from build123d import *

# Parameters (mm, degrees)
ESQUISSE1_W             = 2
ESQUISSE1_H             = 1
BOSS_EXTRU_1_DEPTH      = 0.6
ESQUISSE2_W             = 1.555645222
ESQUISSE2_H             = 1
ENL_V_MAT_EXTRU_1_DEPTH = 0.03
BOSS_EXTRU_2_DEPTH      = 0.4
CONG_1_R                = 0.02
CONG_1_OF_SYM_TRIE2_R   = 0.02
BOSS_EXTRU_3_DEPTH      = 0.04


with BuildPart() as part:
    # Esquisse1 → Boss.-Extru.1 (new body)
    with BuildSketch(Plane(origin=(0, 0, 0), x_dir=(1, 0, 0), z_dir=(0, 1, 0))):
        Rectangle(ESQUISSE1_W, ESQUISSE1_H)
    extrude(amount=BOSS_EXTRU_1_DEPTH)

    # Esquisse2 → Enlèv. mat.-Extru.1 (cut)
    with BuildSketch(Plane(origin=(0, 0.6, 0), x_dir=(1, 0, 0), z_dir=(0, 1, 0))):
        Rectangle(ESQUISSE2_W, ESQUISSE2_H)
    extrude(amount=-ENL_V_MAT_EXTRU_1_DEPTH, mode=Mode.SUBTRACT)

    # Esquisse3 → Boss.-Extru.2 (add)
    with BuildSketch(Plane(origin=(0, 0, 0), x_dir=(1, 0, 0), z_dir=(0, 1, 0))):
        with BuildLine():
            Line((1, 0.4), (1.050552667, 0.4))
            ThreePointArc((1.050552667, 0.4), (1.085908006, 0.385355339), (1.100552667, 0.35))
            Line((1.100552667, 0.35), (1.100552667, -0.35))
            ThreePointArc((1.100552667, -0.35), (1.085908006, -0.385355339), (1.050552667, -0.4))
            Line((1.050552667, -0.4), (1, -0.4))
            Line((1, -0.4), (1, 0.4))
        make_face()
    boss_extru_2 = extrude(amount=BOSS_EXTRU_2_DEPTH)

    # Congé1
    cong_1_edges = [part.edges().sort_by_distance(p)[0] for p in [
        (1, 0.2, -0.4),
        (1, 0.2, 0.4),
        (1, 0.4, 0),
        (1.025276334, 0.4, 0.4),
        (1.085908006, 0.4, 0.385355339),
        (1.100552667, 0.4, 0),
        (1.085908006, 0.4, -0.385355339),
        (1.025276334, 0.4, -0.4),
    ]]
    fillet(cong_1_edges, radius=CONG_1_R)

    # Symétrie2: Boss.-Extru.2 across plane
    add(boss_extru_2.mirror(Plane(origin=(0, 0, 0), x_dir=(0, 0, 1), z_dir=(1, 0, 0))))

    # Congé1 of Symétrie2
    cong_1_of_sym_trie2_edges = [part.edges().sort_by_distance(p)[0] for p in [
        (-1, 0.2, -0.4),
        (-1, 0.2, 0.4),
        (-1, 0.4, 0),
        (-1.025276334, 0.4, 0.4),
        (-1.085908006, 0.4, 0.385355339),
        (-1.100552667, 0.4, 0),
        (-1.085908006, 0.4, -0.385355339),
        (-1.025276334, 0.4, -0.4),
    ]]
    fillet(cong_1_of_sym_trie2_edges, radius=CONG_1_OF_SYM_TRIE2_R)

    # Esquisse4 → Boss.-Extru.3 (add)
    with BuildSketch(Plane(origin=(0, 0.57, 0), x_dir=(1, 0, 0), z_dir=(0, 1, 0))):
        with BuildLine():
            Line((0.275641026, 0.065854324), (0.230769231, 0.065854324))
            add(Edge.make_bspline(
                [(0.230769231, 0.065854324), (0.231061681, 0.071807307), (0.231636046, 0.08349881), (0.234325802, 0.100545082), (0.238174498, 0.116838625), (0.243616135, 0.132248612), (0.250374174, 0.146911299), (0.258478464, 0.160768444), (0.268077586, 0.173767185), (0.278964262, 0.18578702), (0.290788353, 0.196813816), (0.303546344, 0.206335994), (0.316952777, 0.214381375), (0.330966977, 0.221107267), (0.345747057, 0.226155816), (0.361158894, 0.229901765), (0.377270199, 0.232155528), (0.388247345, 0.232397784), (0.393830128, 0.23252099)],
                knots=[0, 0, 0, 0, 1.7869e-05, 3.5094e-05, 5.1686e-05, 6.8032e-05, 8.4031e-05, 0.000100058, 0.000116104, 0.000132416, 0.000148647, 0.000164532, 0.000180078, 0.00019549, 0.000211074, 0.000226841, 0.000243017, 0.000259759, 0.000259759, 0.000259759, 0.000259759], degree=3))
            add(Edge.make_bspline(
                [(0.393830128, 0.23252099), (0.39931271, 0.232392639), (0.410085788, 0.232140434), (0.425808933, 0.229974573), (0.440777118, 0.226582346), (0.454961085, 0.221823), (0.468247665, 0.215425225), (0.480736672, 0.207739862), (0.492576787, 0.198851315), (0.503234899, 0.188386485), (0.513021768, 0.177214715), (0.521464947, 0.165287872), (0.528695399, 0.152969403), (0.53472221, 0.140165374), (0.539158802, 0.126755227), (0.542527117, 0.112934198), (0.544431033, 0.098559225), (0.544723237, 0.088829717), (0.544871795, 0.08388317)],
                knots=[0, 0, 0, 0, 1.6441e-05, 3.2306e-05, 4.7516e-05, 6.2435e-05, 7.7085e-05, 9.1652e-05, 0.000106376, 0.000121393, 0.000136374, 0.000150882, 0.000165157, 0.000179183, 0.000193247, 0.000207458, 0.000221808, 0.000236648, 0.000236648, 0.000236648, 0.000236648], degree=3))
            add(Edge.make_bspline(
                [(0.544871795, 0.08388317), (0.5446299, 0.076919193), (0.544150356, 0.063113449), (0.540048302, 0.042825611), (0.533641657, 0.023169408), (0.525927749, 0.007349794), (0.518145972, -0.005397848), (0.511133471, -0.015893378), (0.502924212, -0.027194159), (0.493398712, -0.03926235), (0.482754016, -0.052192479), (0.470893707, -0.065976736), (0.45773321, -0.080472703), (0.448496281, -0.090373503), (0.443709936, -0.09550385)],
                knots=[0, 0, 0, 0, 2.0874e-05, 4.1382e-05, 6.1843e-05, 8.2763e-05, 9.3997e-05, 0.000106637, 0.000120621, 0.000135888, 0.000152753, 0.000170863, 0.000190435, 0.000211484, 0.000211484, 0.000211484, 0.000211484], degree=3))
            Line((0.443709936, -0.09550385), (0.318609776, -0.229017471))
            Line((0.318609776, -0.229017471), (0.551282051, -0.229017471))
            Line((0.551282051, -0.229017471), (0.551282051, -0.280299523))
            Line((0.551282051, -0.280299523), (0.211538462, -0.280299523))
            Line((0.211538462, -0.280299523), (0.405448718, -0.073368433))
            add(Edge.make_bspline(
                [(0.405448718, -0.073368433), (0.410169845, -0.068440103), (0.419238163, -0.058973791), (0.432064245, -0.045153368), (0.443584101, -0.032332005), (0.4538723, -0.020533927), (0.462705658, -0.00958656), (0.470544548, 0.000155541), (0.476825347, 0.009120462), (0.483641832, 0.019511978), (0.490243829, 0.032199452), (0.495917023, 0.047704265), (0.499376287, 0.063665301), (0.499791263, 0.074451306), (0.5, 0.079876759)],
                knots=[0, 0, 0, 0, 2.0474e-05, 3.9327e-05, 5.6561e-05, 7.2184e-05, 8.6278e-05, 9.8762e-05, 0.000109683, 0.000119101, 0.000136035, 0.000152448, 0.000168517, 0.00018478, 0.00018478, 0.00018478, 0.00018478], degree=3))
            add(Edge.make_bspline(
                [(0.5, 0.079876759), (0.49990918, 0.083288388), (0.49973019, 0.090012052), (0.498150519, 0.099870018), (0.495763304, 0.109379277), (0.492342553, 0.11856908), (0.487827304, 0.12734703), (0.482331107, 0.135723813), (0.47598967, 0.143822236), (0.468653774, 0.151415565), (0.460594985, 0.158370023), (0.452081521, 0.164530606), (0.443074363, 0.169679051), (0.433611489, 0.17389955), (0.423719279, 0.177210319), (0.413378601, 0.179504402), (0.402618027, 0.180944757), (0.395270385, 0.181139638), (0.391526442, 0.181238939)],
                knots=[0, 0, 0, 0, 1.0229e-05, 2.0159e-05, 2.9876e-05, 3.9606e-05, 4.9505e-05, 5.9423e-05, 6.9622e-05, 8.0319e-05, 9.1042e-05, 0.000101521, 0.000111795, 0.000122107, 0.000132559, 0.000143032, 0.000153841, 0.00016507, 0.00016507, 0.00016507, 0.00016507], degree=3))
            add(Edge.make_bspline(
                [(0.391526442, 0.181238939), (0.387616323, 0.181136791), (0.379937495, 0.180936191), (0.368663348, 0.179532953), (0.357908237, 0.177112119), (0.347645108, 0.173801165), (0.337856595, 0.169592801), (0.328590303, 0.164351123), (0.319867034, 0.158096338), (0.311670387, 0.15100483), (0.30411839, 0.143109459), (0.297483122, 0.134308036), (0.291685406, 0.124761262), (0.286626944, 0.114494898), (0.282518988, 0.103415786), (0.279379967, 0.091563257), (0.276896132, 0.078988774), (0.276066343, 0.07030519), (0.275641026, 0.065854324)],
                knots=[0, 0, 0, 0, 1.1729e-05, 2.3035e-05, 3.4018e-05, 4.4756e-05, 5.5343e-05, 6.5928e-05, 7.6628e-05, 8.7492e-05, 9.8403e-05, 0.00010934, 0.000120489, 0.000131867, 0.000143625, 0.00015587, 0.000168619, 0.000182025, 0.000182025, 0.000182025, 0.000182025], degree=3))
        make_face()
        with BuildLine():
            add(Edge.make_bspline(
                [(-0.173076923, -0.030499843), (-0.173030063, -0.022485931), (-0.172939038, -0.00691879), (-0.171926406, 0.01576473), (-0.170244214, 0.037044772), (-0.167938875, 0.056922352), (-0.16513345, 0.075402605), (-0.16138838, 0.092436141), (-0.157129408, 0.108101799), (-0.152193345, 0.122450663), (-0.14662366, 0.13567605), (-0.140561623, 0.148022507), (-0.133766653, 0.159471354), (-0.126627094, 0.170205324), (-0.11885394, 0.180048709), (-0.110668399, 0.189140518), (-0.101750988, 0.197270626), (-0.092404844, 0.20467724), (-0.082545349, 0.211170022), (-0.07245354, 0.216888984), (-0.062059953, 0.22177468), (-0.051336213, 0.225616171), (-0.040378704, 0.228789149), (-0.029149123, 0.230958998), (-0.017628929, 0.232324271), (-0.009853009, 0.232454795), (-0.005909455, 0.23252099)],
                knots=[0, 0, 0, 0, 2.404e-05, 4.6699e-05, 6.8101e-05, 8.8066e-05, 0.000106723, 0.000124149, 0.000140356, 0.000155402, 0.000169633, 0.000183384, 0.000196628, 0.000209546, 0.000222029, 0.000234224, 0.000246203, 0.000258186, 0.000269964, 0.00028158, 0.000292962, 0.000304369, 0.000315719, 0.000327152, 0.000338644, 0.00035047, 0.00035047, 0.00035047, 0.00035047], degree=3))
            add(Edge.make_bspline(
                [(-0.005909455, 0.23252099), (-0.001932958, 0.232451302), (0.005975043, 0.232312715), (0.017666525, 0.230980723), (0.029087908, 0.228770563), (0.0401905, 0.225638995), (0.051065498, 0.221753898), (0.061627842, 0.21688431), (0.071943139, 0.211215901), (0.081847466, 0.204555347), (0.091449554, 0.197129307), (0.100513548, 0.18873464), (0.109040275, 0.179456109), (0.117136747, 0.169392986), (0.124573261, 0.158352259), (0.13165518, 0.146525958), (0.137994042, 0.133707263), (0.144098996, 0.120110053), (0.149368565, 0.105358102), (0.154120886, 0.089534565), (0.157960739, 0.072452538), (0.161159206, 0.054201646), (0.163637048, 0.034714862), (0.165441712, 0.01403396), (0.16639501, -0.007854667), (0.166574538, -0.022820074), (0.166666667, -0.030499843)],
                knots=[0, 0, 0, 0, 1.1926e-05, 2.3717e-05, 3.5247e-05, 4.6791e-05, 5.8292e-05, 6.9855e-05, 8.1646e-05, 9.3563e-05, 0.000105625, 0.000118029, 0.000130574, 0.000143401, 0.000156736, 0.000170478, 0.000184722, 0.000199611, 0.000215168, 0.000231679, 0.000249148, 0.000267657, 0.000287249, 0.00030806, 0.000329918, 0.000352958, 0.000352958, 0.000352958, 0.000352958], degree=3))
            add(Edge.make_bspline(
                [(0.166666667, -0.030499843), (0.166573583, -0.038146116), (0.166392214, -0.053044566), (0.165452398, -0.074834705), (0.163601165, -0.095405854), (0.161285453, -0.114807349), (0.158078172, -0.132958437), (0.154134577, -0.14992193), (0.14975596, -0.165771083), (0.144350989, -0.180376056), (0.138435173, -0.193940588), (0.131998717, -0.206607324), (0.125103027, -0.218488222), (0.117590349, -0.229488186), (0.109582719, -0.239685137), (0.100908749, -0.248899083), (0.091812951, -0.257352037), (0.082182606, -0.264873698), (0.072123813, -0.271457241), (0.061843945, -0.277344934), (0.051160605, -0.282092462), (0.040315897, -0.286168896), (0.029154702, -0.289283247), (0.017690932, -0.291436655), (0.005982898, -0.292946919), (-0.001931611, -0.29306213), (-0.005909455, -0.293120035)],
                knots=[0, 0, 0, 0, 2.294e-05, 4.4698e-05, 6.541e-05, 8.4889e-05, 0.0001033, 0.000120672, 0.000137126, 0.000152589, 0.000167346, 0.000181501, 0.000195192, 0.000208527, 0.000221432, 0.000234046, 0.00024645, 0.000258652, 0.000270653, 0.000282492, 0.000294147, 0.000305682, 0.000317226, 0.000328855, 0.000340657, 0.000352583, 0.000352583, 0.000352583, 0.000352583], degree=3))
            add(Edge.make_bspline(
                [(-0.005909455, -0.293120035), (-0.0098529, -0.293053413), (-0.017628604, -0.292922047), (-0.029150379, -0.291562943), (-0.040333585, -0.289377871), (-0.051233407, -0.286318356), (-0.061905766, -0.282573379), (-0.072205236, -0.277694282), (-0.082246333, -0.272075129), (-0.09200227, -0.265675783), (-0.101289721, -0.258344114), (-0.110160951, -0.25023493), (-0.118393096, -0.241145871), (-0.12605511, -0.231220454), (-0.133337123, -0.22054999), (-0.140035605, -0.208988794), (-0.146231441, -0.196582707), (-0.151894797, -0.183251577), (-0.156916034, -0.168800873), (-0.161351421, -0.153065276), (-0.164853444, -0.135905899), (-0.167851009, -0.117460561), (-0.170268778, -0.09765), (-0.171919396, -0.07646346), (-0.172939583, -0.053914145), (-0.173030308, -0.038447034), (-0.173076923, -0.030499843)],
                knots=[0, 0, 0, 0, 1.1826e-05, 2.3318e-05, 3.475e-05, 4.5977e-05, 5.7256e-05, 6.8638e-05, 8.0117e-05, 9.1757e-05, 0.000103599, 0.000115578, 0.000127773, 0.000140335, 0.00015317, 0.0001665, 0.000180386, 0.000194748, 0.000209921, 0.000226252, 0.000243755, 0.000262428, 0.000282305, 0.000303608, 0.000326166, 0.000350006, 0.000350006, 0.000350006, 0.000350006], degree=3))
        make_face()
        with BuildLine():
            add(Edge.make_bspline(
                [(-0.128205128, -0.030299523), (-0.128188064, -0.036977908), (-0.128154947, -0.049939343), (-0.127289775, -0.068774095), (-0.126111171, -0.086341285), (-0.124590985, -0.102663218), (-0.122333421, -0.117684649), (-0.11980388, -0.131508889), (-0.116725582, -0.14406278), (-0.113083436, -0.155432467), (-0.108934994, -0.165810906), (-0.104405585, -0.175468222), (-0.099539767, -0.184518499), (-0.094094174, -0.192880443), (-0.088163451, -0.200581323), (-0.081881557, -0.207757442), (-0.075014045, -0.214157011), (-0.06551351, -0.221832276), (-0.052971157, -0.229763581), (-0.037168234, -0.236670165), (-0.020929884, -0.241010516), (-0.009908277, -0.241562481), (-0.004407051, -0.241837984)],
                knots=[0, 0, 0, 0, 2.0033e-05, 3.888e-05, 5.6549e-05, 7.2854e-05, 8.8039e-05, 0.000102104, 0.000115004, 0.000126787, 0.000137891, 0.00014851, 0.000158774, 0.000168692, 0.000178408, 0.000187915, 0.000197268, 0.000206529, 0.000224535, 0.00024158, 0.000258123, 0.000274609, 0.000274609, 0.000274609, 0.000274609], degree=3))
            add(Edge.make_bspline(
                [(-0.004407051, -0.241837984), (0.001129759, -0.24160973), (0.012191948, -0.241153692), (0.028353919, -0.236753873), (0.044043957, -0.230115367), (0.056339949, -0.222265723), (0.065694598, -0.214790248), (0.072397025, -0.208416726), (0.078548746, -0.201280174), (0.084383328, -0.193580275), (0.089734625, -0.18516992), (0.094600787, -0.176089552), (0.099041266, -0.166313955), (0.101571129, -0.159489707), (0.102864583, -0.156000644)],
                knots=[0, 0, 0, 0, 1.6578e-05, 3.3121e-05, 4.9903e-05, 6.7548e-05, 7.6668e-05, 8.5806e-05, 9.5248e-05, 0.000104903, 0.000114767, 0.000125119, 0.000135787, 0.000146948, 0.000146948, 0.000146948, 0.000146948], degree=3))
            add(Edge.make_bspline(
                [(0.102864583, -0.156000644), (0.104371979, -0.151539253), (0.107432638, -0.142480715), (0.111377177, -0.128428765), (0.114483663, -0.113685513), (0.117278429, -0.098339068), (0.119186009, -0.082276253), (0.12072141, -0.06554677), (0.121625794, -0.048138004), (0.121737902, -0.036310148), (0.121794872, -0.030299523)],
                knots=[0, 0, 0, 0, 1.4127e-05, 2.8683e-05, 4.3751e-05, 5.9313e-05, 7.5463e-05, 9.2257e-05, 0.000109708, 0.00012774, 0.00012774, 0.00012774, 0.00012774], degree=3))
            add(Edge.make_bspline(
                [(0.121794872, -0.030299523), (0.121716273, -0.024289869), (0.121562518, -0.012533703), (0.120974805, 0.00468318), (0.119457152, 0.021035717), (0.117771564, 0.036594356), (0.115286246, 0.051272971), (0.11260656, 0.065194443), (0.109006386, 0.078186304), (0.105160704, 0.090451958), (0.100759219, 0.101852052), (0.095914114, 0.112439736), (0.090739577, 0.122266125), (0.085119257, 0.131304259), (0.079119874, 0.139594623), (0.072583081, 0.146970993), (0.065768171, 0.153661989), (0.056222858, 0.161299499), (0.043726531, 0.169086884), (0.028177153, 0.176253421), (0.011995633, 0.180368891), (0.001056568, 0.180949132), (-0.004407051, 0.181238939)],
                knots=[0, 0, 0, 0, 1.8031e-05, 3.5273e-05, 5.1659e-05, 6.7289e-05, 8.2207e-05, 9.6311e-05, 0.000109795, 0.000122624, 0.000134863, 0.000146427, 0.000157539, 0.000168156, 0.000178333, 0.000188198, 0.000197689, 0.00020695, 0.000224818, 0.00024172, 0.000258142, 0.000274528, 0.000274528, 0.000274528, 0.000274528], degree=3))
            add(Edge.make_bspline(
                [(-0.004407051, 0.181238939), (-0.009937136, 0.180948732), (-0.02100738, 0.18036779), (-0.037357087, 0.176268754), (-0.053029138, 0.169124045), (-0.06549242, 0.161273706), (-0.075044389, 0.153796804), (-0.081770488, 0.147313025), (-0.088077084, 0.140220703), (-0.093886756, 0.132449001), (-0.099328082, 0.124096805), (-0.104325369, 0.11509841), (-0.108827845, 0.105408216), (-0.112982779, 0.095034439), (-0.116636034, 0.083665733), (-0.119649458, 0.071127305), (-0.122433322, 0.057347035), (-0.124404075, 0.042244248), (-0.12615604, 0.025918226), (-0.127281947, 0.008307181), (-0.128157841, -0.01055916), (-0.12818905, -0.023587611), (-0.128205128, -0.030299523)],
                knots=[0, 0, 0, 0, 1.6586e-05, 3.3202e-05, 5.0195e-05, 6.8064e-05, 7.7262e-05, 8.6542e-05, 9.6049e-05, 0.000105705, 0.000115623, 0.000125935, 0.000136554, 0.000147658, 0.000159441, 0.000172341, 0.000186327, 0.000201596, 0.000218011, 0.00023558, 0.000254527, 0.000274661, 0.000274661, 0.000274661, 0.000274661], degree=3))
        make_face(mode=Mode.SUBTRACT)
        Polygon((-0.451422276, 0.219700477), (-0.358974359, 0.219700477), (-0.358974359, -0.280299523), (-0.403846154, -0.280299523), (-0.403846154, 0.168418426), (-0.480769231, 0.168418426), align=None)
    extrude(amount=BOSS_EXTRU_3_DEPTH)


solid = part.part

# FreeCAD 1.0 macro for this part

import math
import FreeCAD as App
import Part
import Sketcher


def edges_at(feature, points):
    """Names of the edges that pass closest to the given points."""
    edges = feature.Shape.Edges
    near = lambda p: min(range(len(edges)), key=lambda i: edges[i].distToShape(Part.Vertex(*p))[0])
    return sorted({f"Edge{near(p) + 1}" for p in points})


def add_polygon(sketch, points):
    """Adds a closed chain of lines whose ends are joined by coincident constraints."""
    first, n = sketch.GeometryCount, len(points)
    for a, b in zip(points, points[1:] + points[:1]):
        sketch.addGeometry(Part.LineSegment(App.Vector(*a, 0), App.Vector(*b, 0)), False)
    for i in range(n):
        sketch.addConstraint(Sketcher.Constraint("Coincident", first + i, 2, first + (i + 1) % n, 1))

doc = App.newDocument("Part")
body = doc.addObject("PartDesign::Body", "Body")

# Sketch on XZ plane
sketch1 = body.newObject("Sketcher::SketchObject", "Sketch")
sketch1.AttachmentSupport = (doc.getObject("XZ_Plane"), [""])
sketch1.MapMode = "FlatFace"
add_polygon(sketch1, [(-1, -0.5), (-1, 0.5), (1, 0.5), (1, -0.5)])  # lines 0-3
sketch1.addConstraint(Sketcher.Constraint("Vertical", 0))
sketch1.addConstraint(Sketcher.Constraint("Horizontal", 1))
sketch1.addConstraint(Sketcher.Constraint("Vertical", 2))
sketch1.addConstraint(Sketcher.Constraint("Horizontal", 3))
sketch1.addConstraint(Sketcher.Constraint("Symmetric", 0, 2, 2, 2, -1, 1))
sketch1.addConstraint(Sketcher.Constraint("DistanceX", 1, 1, 1, 2, 2.0))
sketch1.addConstraint(Sketcher.Constraint("DistanceY", 0, 1, 0, 2, 1.0))
pad1 = body.newObject("PartDesign::Pad", "Pad")
pad1.Profile = sketch1
pad1.Length = 0.6
pad1.Reversed = True

# Sketch on XZ plane
sketch2 = body.newObject("Sketcher::SketchObject", "Sketch001")
sketch2.AttachmentSupport = (doc.getObject("XZ_Plane"), [""])
sketch2.MapMode = "FlatFace"
sketch2.AttachmentOffset = App.Placement(App.Vector(0, 0, -0.6), App.Rotation())
add_polygon(sketch2, [(-0.8, -0.5), (-0.8, 0.5), (0.8, 0.5), (0.8, -0.5)])  # lines 0-3
sketch2.addConstraint(Sketcher.Constraint("Vertical", 0))
sketch2.addConstraint(Sketcher.Constraint("Horizontal", 1))
sketch2.addConstraint(Sketcher.Constraint("Vertical", 2))
sketch2.addConstraint(Sketcher.Constraint("Horizontal", 3))
sketch2.addConstraint(Sketcher.Constraint("Symmetric", 0, 2, 2, 2, -1, 1))
sketch2.addConstraint(Sketcher.Constraint("DistanceY", 0, 1, 0, 2, 1.0))
sketch2.addConstraint(Sketcher.Constraint("DistanceX", 1, 1, 1, 2, 1.555645))
pocket1 = body.newObject("PartDesign::Pocket", "Pocket")
pocket1.Profile = sketch2
pocket1.Length = 0.03
pocket1.Reversed = True

# Sketch on XZ plane
sketch3 = body.newObject("Sketcher::SketchObject", "Sketch002")
sketch3.AttachmentSupport = (doc.getObject("XZ_Plane"), [""])
sketch3.MapMode = "FlatFace"
sketch3.addGeometry(Part.LineSegment(App.Vector(1.05, -0.4, 0), App.Vector(1, -0.4, 0)), False)
sketch3.addGeometry(Part.LineSegment(App.Vector(1, -0.4, 0), App.Vector(1, 0.4, 0)), False)
sketch3.addGeometry(Part.LineSegment(App.Vector(1, 0.4, 0), App.Vector(1.05, 0.4, 0)), False)
sketch3.addGeometry(Part.ArcOfCircle(Part.Circle(App.Vector(1.05, 0.35, 0), App.Vector(0, 0, 1), 0.05), math.radians(0), math.radians(90)), False)
sketch3.addGeometry(Part.LineSegment(App.Vector(1.1, 0.35, 0), App.Vector(1.1, -0.35, 0)), False)
sketch3.addGeometry(Part.ArcOfCircle(Part.Circle(App.Vector(1.05, -0.35, 0), App.Vector(0, 0, 1), 0.05), math.radians(-90), math.radians(0)), False)
sketch3.addConstraint(Sketcher.Constraint("Coincident", 0, 2, 1, 1))
sketch3.addConstraint(Sketcher.Constraint("Coincident", 1, 2, 2, 1))
sketch3.addConstraint(Sketcher.Constraint("Tangent", 2, 2, 3, 2))
sketch3.addConstraint(Sketcher.Constraint("Tangent", 3, 1, 4, 1))
sketch3.addConstraint(Sketcher.Constraint("Tangent", 4, 2, 5, 2))
sketch3.addConstraint(Sketcher.Constraint("Tangent", 5, 1, 0, 1))
sketch3.addConstraint(Sketcher.Constraint("Horizontal", 0))
sketch3.addConstraint(Sketcher.Constraint("Vertical", 1))
sketch3.addConstraint(Sketcher.Constraint("Horizontal", 2))
sketch3.addConstraint(Sketcher.Constraint("Vertical", 4))
sketch3.addConstraint(Sketcher.Constraint("Equal", 3, 5))
sketch3.addConstraint(Sketcher.Constraint("Radius", 3, 0.05))
sketch3.addConstraint(Sketcher.Constraint("DistanceY", 1, 1, 1, 2, 0.8))
sketch3.addConstraint(Sketcher.Constraint("DistanceX", -1, 1, 0, 2, 1.0))
sketch3.addConstraint(Sketcher.Constraint("DistanceY", 0, 2, -1, 1, 0.4))
sketch3.addConstraint(Sketcher.Constraint("DistanceX", 0, 2, 0, 1, 0.050553))
pad2 = body.newObject("PartDesign::Pad", "Pad001")
pad2.Profile = sketch3
pad2.Length = 0.4
pad2.Reversed = True
doc.recompute()

fillet = body.newObject("PartDesign::Fillet", "Fillet")
fillet.Base = (pad2, edges_at(pad2, [
    (1, 0.2, -0.4),
    (1, 0.2, 0.4),
    (1, 0.4, 0),
    (1.025, 0.4, 0.4),
    (1.086, 0.4, 0.385),
    (1.101, 0.4, 0),
    (1.086, 0.4, -0.385),
    (1.025, 0.4, -0.4),
]))
fillet.Radius = 0.02
doc.recompute()

mirrored = body.newObject("PartDesign::Mirrored", "Mirrored")
mirrored.Originals = [pad2]
mirrored.MirrorPlane = (doc.getObject("YZ_Plane"), [""])
body.Tip = mirrored
doc.recompute()

fillet2 = body.newObject("PartDesign::Fillet", "Fillet001")
fillet2.Base = (mirrored, edges_at(mirrored, [
    (-1, 0.2, -0.4),
    (-1, 0.2, 0.4),
    (-1, 0.4, 0),
    (-1.025, 0.4, 0.4),
    (-1.086, 0.4, 0.385),
    (-1.101, 0.4, 0),
    (-1.086, 0.4, -0.385),
    (-1.025, 0.4, -0.4),
]))
fillet2.Radius = 0.02

# Sketch on XZ plane
sketch4 = body.newObject("Sketcher::SketchObject", "Sketch003")
sketch4.AttachmentSupport = (doc.getObject("XZ_Plane"), [""])
sketch4.MapMode = "FlatFace"
sketch4.AttachmentOffset = App.Placement(App.Vector(0, 0, -0.57), App.Rotation())
sketch4.addGeometry(Part.LineSegment(App.Vector(0.230769, -0.065854, 0), App.Vector(0.275641, -0.065854, 0)), False)  # 0
sketch4.addGeometry(Part.BSplineCurve([App.Vector(0.391526, -0.181239, 0), App.Vector(0.387616, -0.181137, 0), App.Vector(0.379937, -0.180936, 0), App.Vector(0.368663, -0.179533, 0), App.Vector(0.357908, -0.177112, 0), App.Vector(0.347645, -0.173801, 0), App.Vector(0.337857, -0.169593, 0), App.Vector(0.32859, -0.164351, 0), App.Vector(0.319867, -0.158096, 0), App.Vector(0.31167, -0.151005, 0), App.Vector(0.304118, -0.143109, 0), App.Vector(0.297483, -0.134308, 0), App.Vector(0.291685, -0.124761, 0), App.Vector(0.286627, -0.114495, 0), App.Vector(0.282519, -0.103416, 0), App.Vector(0.27938, -0.091563, 0), App.Vector(0.276896, -0.078989, 0), App.Vector(0.276066, -0.070305, 0), App.Vector(0.275641, -0.065854, 0)], [4, 1, 1, 1, 1, 1, 1, 1, 1, 1, 1, 1, 1, 1, 1, 1, 4], [0, 0.000011729, 0.000023035, 0.000034018, 0.000044756, 0.000055343, 0.000065928, 0.000076628, 0.000087492, 0.000098403, 0.00010934, 0.000120489, 0.000131867, 0.000143625, 0.00015587, 0.000168619, 0.000182025], False, 3, [1, 1, 1, 1, 1, 1, 1, 1, 1, 1, 1, 1, 1, 1, 1, 1, 1, 1, 1], False), False)  # 1
sketch4.addGeometry(Part.BSplineCurve([App.Vector(0.5, -0.079877, 0), App.Vector(0.499909, -0.083288, 0), App.Vector(0.49973, -0.090012, 0), App.Vector(0.498151, -0.09987, 0), App.Vector(0.495763, -0.109379, 0), App.Vector(0.492343, -0.118569, 0), App.Vector(0.487827, -0.127347, 0), App.Vector(0.482331, -0.135724, 0), App.Vector(0.47599, -0.143822, 0), App.Vector(0.468654, -0.151416, 0), App.Vector(0.460595, -0.15837, 0), App.Vector(0.452082, -0.164531, 0), App.Vector(0.443074, -0.169679, 0), App.Vector(0.433611, -0.1739, 0), App.Vector(0.423719, -0.17721, 0), App.Vector(0.413379, -0.179504, 0), App.Vector(0.402618, -0.180945, 0), App.Vector(0.39527, -0.18114, 0), App.Vector(0.391526, -0.181239, 0)], [4, 1, 1, 1, 1, 1, 1, 1, 1, 1, 1, 1, 1, 1, 1, 1, 4], [0, 0.000010229, 0.000020159, 0.000029876, 0.000039606, 0.000049505, 0.000059423, 0.000069622, 0.000080319, 0.000091042, 0.000101521, 0.000111795, 0.000122107, 0.000132559, 0.000143032, 0.000153841, 0.00016507], False, 3, [1, 1, 1, 1, 1, 1, 1, 1, 1, 1, 1, 1, 1, 1, 1, 1, 1, 1, 1], False), False)  # 2
sketch4.addGeometry(Part.BSplineCurve([App.Vector(0.405449, 0.073368, 0), App.Vector(0.41017, 0.06844, 0), App.Vector(0.419238, 0.058974, 0), App.Vector(0.432064, 0.045153, 0), App.Vector(0.443584, 0.032332, 0), App.Vector(0.453872, 0.020534, 0), App.Vector(0.462706, 0.009587, 0), App.Vector(0.470545, -0.000156, 0), App.Vector(0.476825, -0.00912, 0), App.Vector(0.483642, -0.019512, 0), App.Vector(0.490244, -0.032199, 0), App.Vector(0.495917, -0.047704, 0), App.Vector(0.499376, -0.063665, 0), App.Vector(0.499791, -0.074451, 0), App.Vector(0.5, -0.079877, 0)], [4, 1, 1, 1, 1, 1, 1, 1, 1, 1, 1, 1, 4], [0, 0.000020474, 0.000039327, 0.000056561, 0.000072184, 0.000086278, 0.000098762, 0.000109683, 0.000119101, 0.000136035, 0.000152448, 0.000168517, 0.00018478], False, 3, [1, 1, 1, 1, 1, 1, 1, 1, 1, 1, 1, 1, 1, 1, 1], False), False)  # 3
sketch4.addGeometry(Part.LineSegment(App.Vector(0.405449, 0.073368, 0), App.Vector(0.211538, 0.2803, 0)), False)  # 4
sketch4.addGeometry(Part.LineSegment(App.Vector(0.211538, 0.2803, 0), App.Vector(0.551282, 0.2803, 0)), False)  # 5
sketch4.addGeometry(Part.LineSegment(App.Vector(0.551282, 0.2803, 0), App.Vector(0.551282, 0.229017, 0)), False)  # 6
sketch4.addGeometry(Part.LineSegment(App.Vector(0.551282, 0.229017, 0), App.Vector(0.31861, 0.229017, 0)), False)  # 7
sketch4.addGeometry(Part.LineSegment(App.Vector(0.31861, 0.229017, 0), App.Vector(0.44371, 0.095504, 0)), False)  # 8
sketch4.addGeometry(Part.BSplineCurve([App.Vector(0.544872, -0.083883, 0), App.Vector(0.54463, -0.076919, 0), App.Vector(0.54415, -0.063113, 0), App.Vector(0.540048, -0.042826, 0), App.Vector(0.533642, -0.023169, 0), App.Vector(0.525928, -0.00735, 0), App.Vector(0.518146, 0.005398, 0), App.Vector(0.511133, 0.015893, 0), App.Vector(0.502924, 0.027194, 0), App.Vector(0.493399, 0.039262, 0), App.Vector(0.482754, 0.052192, 0), App.Vector(0.470894, 0.065977, 0), App.Vector(0.457733, 0.080473, 0), App.Vector(0.448496, 0.090374, 0), App.Vector(0.44371, 0.095504, 0)], [4, 1, 1, 1, 1, 1, 1, 1, 1, 1, 1, 1, 4], [0, 0.000020874, 0.000041382, 0.000061843, 0.000082763, 0.000093997, 0.000106637, 0.000120621, 0.000135888, 0.000152753, 0.000170863, 0.000190435, 0.000211484], False, 3, [1, 1, 1, 1, 1, 1, 1, 1, 1, 1, 1, 1, 1, 1, 1], False), False)  # 9
sketch4.addGeometry(Part.BSplineCurve([App.Vector(0.39383, -0.232521, 0), App.Vector(0.399313, -0.232393, 0), App.Vector(0.410086, -0.23214, 0), App.Vector(0.425809, -0.229975, 0), App.Vector(0.440777, -0.226582, 0), App.Vector(0.454961, -0.221823, 0), App.Vector(0.468248, -0.215425, 0), App.Vector(0.480737, -0.20774, 0), App.Vector(0.492577, -0.198851, 0), App.Vector(0.503235, -0.188386, 0), App.Vector(0.513022, -0.177215, 0), App.Vector(0.521465, -0.165288, 0), App.Vector(0.528695, -0.152969, 0), App.Vector(0.534722, -0.140165, 0), App.Vector(0.539159, -0.126755, 0), App.Vector(0.542527, -0.112934, 0), App.Vector(0.544431, -0.098559, 0), App.Vector(0.544723, -0.08883, 0), App.Vector(0.544872, -0.083883, 0)], [4, 1, 1, 1, 1, 1, 1, 1, 1, 1, 1, 1, 1, 1, 1, 1, 4], [0, 0.000016441, 0.000032306, 0.000047516, 0.000062435, 0.000077085, 0.000091652, 0.000106376, 0.000121393, 0.000136374, 0.000150882, 0.000165157, 0.000179183, 0.000193247, 0.000207458, 0.000221808, 0.000236648], False, 3, [1, 1, 1, 1, 1, 1, 1, 1, 1, 1, 1, 1, 1, 1, 1, 1, 1, 1, 1], False), False)  # 10
sketch4.addGeometry(Part.BSplineCurve([App.Vector(0.230769, -0.065854, 0), App.Vector(0.231062, -0.071807, 0), App.Vector(0.231636, -0.083499, 0), App.Vector(0.234326, -0.100545, 0), App.Vector(0.238174, -0.116839, 0), App.Vector(0.243616, -0.132249, 0), App.Vector(0.250374, -0.146911, 0), App.Vector(0.258478, -0.160768, 0), App.Vector(0.268078, -0.173767, 0), App.Vector(0.278964, -0.185787, 0), App.Vector(0.290788, -0.196814, 0), App.Vector(0.303546, -0.206336, 0), App.Vector(0.316953, -0.214381, 0), App.Vector(0.330967, -0.221107, 0), App.Vector(0.345747, -0.226156, 0), App.Vector(0.361159, -0.229902, 0), App.Vector(0.37727, -0.232156, 0), App.Vector(0.388247, -0.232398, 0), App.Vector(0.39383, -0.232521, 0)], [4, 1, 1, 1, 1, 1, 1, 1, 1, 1, 1, 1, 1, 1, 1, 1, 4], [0, 0.000017869, 0.000035094, 0.000051686, 0.000068032, 0.000084031, 0.000100058, 0.000116104, 0.000132416, 0.000148647, 0.000164532, 0.000180078, 0.00019549, 0.000211074, 0.000226841, 0.000243017, 0.000259759], False, 3, [1, 1, 1, 1, 1, 1, 1, 1, 1, 1, 1, 1, 1, 1, 1, 1, 1, 1, 1], False), False)  # 11
sketch4.addGeometry(Part.BSplineCurve([App.Vector(-0.173077, 0.0305, 0), App.Vector(-0.17303, 0.022486, 0), App.Vector(-0.172939, 0.006919, 0), App.Vector(-0.171926, -0.015765, 0), App.Vector(-0.170244, -0.037045, 0), App.Vector(-0.167939, -0.056922, 0), App.Vector(-0.165133, -0.075403, 0), App.Vector(-0.161388, -0.092436, 0), App.Vector(-0.157129, -0.108102, 0), App.Vector(-0.152193, -0.122451, 0), App.Vector(-0.146624, -0.135676, 0), App.Vector(-0.140562, -0.148023, 0), App.Vector(-0.133767, -0.159471, 0), App.Vector(-0.126627, -0.170205, 0), App.Vector(-0.118854, -0.180049, 0), App.Vector(-0.110668, -0.189141, 0), App.Vector(-0.101751, -0.197271, 0), App.Vector(-0.092405, -0.204677, 0), App.Vector(-0.082545, -0.21117, 0), App.Vector(-0.072454, -0.216889, 0), App.Vector(-0.06206, -0.221775, 0), App.Vector(-0.051336, -0.225616, 0), App.Vector(-0.040379, -0.228789, 0), App.Vector(-0.029149, -0.230959, 0), App.Vector(-0.017629, -0.232324, 0), App.Vector(-0.009853, -0.232455, 0), App.Vector(-0.005909, -0.232521, 0)], [4, 1, 1, 1, 1, 1, 1, 1, 1, 1, 1, 1, 1, 1, 1, 1, 1, 1, 1, 1, 1, 1, 1, 1, 4], [0, 0.00002404, 0.000046699, 0.000068101, 0.000088066, 0.000106723, 0.000124149, 0.000140356, 0.000155402, 0.000169633, 0.000183384, 0.000196628, 0.000209546, 0.000222029, 0.000234224, 0.000246203, 0.000258186, 0.000269964, 0.00028158, 0.000292962, 0.000304369, 0.000315719, 0.000327152, 0.000338644, 0.00035047], False, 3, [1, 1, 1, 1, 1, 1, 1, 1, 1, 1, 1, 1, 1, 1, 1, 1, 1, 1, 1, 1, 1, 1, 1, 1, 1, 1, 1], False), False)  # 12
sketch4.addGeometry(Part.BSplineCurve([App.Vector(-0.005909, 0.29312, 0), App.Vector(-0.009853, 0.293053, 0), App.Vector(-0.017629, 0.292922, 0), App.Vector(-0.02915, 0.291563, 0), App.Vector(-0.040334, 0.289378, 0), App.Vector(-0.051233, 0.286318, 0), App.Vector(-0.061906, 0.282573, 0), App.Vector(-0.072205, 0.277694, 0), App.Vector(-0.082246, 0.272075, 0), App.Vector(-0.092002, 0.265676, 0), App.Vector(-0.10129, 0.258344, 0), App.Vector(-0.110161, 0.250235, 0), App.Vector(-0.118393, 0.241146, 0), App.Vector(-0.126055, 0.23122, 0), App.Vector(-0.133337, 0.22055, 0), App.Vector(-0.140036, 0.208989, 0), App.Vector(-0.146231, 0.196583, 0), App.Vector(-0.151895, 0.183252, 0), App.Vector(-0.156916, 0.168801, 0), App.Vector(-0.161351, 0.153065, 0), App.Vector(-0.164853, 0.135906, 0), App.Vector(-0.167851, 0.117461, 0), App.Vector(-0.170269, 0.09765, 0), App.Vector(-0.171919, 0.076463, 0), App.Vector(-0.17294, 0.053914, 0), App.Vector(-0.17303, 0.038447, 0), App.Vector(-0.173077, 0.0305, 0)], [4, 1, 1, 1, 1, 1, 1, 1, 1, 1, 1, 1, 1, 1, 1, 1, 1, 1, 1, 1, 1, 1, 1, 1, 4], [0, 0.000011826, 0.000023318, 0.00003475, 0.000045977, 0.000057256, 0.000068638, 0.000080117, 0.000091757, 0.000103599, 0.000115578, 0.000127773, 0.000140335, 0.00015317, 0.0001665, 0.000180386, 0.000194748, 0.000209921, 0.000226252, 0.000243755, 0.000262428, 0.000282305, 0.000303608, 0.000326166, 0.000350006], False, 3, [1, 1, 1, 1, 1, 1, 1, 1, 1, 1, 1, 1, 1, 1, 1, 1, 1, 1, 1, 1, 1, 1, 1, 1, 1, 1, 1], False), False)  # 13
sketch4.addGeometry(Part.BSplineCurve([App.Vector(0.166667, 0.0305, 0), App.Vector(0.166574, 0.038146, 0), App.Vector(0.166392, 0.053045, 0), App.Vector(0.165452, 0.074835, 0), App.Vector(0.163601, 0.095406, 0), App.Vector(0.161285, 0.114807, 0), App.Vector(0.158078, 0.132958, 0), App.Vector(0.154135, 0.149922, 0), App.Vector(0.149756, 0.165771, 0), App.Vector(0.144351, 0.180376, 0), App.Vector(0.138435, 0.193941, 0), App.Vector(0.131999, 0.206607, 0), App.Vector(0.125103, 0.218488, 0), App.Vector(0.11759, 0.229488, 0), App.Vector(0.109583, 0.239685, 0), App.Vector(0.100909, 0.248899, 0), App.Vector(0.091813, 0.257352, 0), App.Vector(0.082183, 0.264874, 0), App.Vector(0.072124, 0.271457, 0), App.Vector(0.061844, 0.277345, 0), App.Vector(0.051161, 0.282092, 0), App.Vector(0.040316, 0.286169, 0), App.Vector(0.029155, 0.289283, 0), App.Vector(0.017691, 0.291437, 0), App.Vector(0.005983, 0.292947, 0), App.Vector(-0.001932, 0.293062, 0), App.Vector(-0.005909, 0.29312, 0)], [4, 1, 1, 1, 1, 1, 1, 1, 1, 1, 1, 1, 1, 1, 1, 1, 1, 1, 1, 1, 1, 1, 1, 1, 4], [0, 0.00002294, 0.000044698, 0.00006541, 0.000084889, 0.0001033, 0.000120672, 0.000137126, 0.000152589, 0.000167346, 0.000181501, 0.000195192, 0.000208527, 0.000221432, 0.000234046, 0.00024645, 0.000258652, 0.000270653, 0.000282492, 0.000294147, 0.000305682, 0.000317226, 0.000328855, 0.000340657, 0.000352583], False, 3, [1, 1, 1, 1, 1, 1, 1, 1, 1, 1, 1, 1, 1, 1, 1, 1, 1, 1, 1, 1, 1, 1, 1, 1, 1, 1, 1], False), False)  # 14
sketch4.addGeometry(Part.BSplineCurve([App.Vector(-0.005909, -0.232521, 0), App.Vector(-0.001933, -0.232451, 0), App.Vector(0.005975, -0.232313, 0), App.Vector(0.017667, -0.230981, 0), App.Vector(0.029088, -0.228771, 0), App.Vector(0.04019, -0.225639, 0), App.Vector(0.051065, -0.221754, 0), App.Vector(0.061628, -0.216884, 0), App.Vector(0.071943, -0.211216, 0), App.Vector(0.081847, -0.204555, 0), App.Vector(0.09145, -0.197129, 0), App.Vector(0.100514, -0.188735, 0), App.Vector(0.10904, -0.179456, 0), App.Vector(0.117137, -0.169393, 0), App.Vector(0.124573, -0.158352, 0), App.Vector(0.131655, -0.146526, 0), App.Vector(0.137994, -0.133707, 0), App.Vector(0.144099, -0.12011, 0), App.Vector(0.149369, -0.105358, 0), App.Vector(0.154121, -0.089535, 0), App.Vector(0.157961, -0.072453, 0), App.Vector(0.161159, -0.054202, 0), App.Vector(0.163637, -0.034715, 0), App.Vector(0.165442, -0.014034, 0), App.Vector(0.166395, 0.007855, 0), App.Vector(0.166575, 0.02282, 0), App.Vector(0.166667, 0.0305, 0)], [4, 1, 1, 1, 1, 1, 1, 1, 1, 1, 1, 1, 1, 1, 1, 1, 1, 1, 1, 1, 1, 1, 1, 1, 4], [0, 0.000011926, 0.000023717, 0.000035247, 0.000046791, 0.000058292, 0.000069855, 0.000081646, 0.000093563, 0.000105625, 0.000118029, 0.000130574, 0.000143401, 0.000156736, 0.000170478, 0.000184722, 0.000199611, 0.000215168, 0.000231679, 0.000249148, 0.000267657, 0.000287249, 0.00030806, 0.000329918, 0.000352958], False, 3, [1, 1, 1, 1, 1, 1, 1, 1, 1, 1, 1, 1, 1, 1, 1, 1, 1, 1, 1, 1, 1, 1, 1, 1, 1, 1, 1], False), False)  # 15
sketch4.addGeometry(Part.BSplineCurve([App.Vector(-0.004407, -0.181239, 0), App.Vector(-0.009937, -0.180949, 0), App.Vector(-0.021007, -0.180368, 0), App.Vector(-0.037357, -0.176269, 0), App.Vector(-0.053029, -0.169124, 0), App.Vector(-0.065492, -0.161274, 0), App.Vector(-0.075044, -0.153797, 0), App.Vector(-0.08177, -0.147313, 0), App.Vector(-0.088077, -0.140221, 0), App.Vector(-0.093887, -0.132449, 0), App.Vector(-0.099328, -0.124097, 0), App.Vector(-0.104325, -0.115098, 0), App.Vector(-0.108828, -0.105408, 0), App.Vector(-0.112983, -0.095034, 0), App.Vector(-0.116636, -0.083666, 0), App.Vector(-0.119649, -0.071127, 0), App.Vector(-0.122433, -0.057347, 0), App.Vector(-0.124404, -0.042244, 0), App.Vector(-0.126156, -0.025918, 0), App.Vector(-0.127282, -0.008307, 0), App.Vector(-0.128158, 0.010559, 0), App.Vector(-0.128189, 0.023588, 0), App.Vector(-0.128205, 0.0303, 0)], [4, 1, 1, 1, 1, 1, 1, 1, 1, 1, 1, 1, 1, 1, 1, 1, 1, 1, 1, 1, 4], [0, 0.000016586, 0.000033202, 0.000050195, 0.000068064, 0.000077262, 0.000086542, 0.000096049, 0.000105705, 0.000115623, 0.000125935, 0.000136554, 0.000147658, 0.000159441, 0.000172341, 0.000186327, 0.000201596, 0.000218011, 0.00023558, 0.000254527, 0.000274661], False, 3, [1, 1, 1, 1, 1, 1, 1, 1, 1, 1, 1, 1, 1, 1, 1, 1, 1, 1, 1, 1, 1, 1, 1], False), False)  # 16
sketch4.addGeometry(Part.BSplineCurve([App.Vector(0.121795, 0.0303, 0), App.Vector(0.121716, 0.02429, 0), App.Vector(0.121563, 0.012534, 0), App.Vector(0.120975, -0.004683, 0), App.Vector(0.119457, -0.021036, 0), App.Vector(0.117772, -0.036594, 0), App.Vector(0.115286, -0.051273, 0), App.Vector(0.112607, -0.065194, 0), App.Vector(0.109006, -0.078186, 0), App.Vector(0.105161, -0.090452, 0), App.Vector(0.100759, -0.101852, 0), App.Vector(0.095914, -0.11244, 0), App.Vector(0.09074, -0.122266, 0), App.Vector(0.085119, -0.131304, 0), App.Vector(0.07912, -0.139595, 0), App.Vector(0.072583, -0.146971, 0), App.Vector(0.065768, -0.153662, 0), App.Vector(0.056223, -0.161299, 0), App.Vector(0.043727, -0.169087, 0), App.Vector(0.028177, -0.176253, 0), App.Vector(0.011996, -0.180369, 0), App.Vector(0.001057, -0.180949, 0), App.Vector(-0.004407, -0.181239, 0)], [4, 1, 1, 1, 1, 1, 1, 1, 1, 1, 1, 1, 1, 1, 1, 1, 1, 1, 1, 1, 4], [0, 0.000018031, 0.000035273, 0.000051659, 0.000067289, 0.000082207, 0.000096311, 0.000109795, 0.000122624, 0.000134863, 0.000146427, 0.000157539, 0.000168156, 0.000178333, 0.000188198, 0.000197689, 0.00020695, 0.000224818, 0.00024172, 0.000258142, 0.000274528], False, 3, [1, 1, 1, 1, 1, 1, 1, 1, 1, 1, 1, 1, 1, 1, 1, 1, 1, 1, 1, 1, 1, 1, 1], False), False)  # 17
sketch4.addGeometry(Part.BSplineCurve([App.Vector(0.102865, 0.156001, 0), App.Vector(0.104372, 0.151539, 0), App.Vector(0.107433, 0.142481, 0), App.Vector(0.111377, 0.128429, 0), App.Vector(0.114484, 0.113686, 0), App.Vector(0.117278, 0.098339, 0), App.Vector(0.119186, 0.082276, 0), App.Vector(0.120721, 0.065547, 0), App.Vector(0.121626, 0.048138, 0), App.Vector(0.121738, 0.03631, 0), App.Vector(0.121795, 0.0303, 0)], [4, 1, 1, 1, 1, 1, 1, 1, 4], [0, 0.000014127, 0.000028683, 0.000043751, 0.000059313, 0.000075463, 0.000092257, 0.000109708, 0.00012774], False, 3, [1, 1, 1, 1, 1, 1, 1, 1, 1, 1, 1], False), False)  # 18
sketch4.addGeometry(Part.BSplineCurve([App.Vector(-0.004407, 0.241838, 0), App.Vector(0.00113, 0.24161, 0), App.Vector(0.012192, 0.241154, 0), App.Vector(0.028354, 0.236754, 0), App.Vector(0.044044, 0.230115, 0), App.Vector(0.05634, 0.222266, 0), App.Vector(0.065695, 0.21479, 0), App.Vector(0.072397, 0.208417, 0), App.Vector(0.078549, 0.20128, 0), App.Vector(0.084383, 0.19358, 0), App.Vector(0.089735, 0.18517, 0), App.Vector(0.094601, 0.17609, 0), App.Vector(0.099041, 0.166314, 0), App.Vector(0.101571, 0.15949, 0), App.Vector(0.102865, 0.156001, 0)], [4, 1, 1, 1, 1, 1, 1, 1, 1, 1, 1, 1, 4], [0, 0.000016578, 0.000033121, 0.000049903, 0.000067548, 0.000076668, 0.000085806, 0.000095248, 0.000104903, 0.000114767, 0.000125119, 0.000135787, 0.000146948], False, 3, [1, 1, 1, 1, 1, 1, 1, 1, 1, 1, 1, 1, 1, 1, 1], False), False)  # 19
sketch4.addGeometry(Part.BSplineCurve([App.Vector(-0.128205, 0.0303, 0), App.Vector(-0.128188, 0.036978, 0), App.Vector(-0.128155, 0.049939, 0), App.Vector(-0.12729, 0.068774, 0), App.Vector(-0.126111, 0.086341, 0), App.Vector(-0.124591, 0.102663, 0), App.Vector(-0.122333, 0.117685, 0), App.Vector(-0.119804, 0.131509, 0), App.Vector(-0.116726, 0.144063, 0), App.Vector(-0.113083, 0.155432, 0), App.Vector(-0.108935, 0.165811, 0), App.Vector(-0.104406, 0.175468, 0), App.Vector(-0.09954, 0.184518, 0), App.Vector(-0.094094, 0.19288, 0), App.Vector(-0.088163, 0.200581, 0), App.Vector(-0.081882, 0.207757, 0), App.Vector(-0.075014, 0.214157, 0), App.Vector(-0.065514, 0.221832, 0), App.Vector(-0.052971, 0.229764, 0), App.Vector(-0.037168, 0.23667, 0), App.Vector(-0.02093, 0.241011, 0), App.Vector(-0.009908, 0.241562, 0), App.Vector(-0.004407, 0.241838, 0)], [4, 1, 1, 1, 1, 1, 1, 1, 1, 1, 1, 1, 1, 1, 1, 1, 1, 1, 1, 1, 4], [0, 0.000020033, 0.00003888, 0.000056549, 0.000072854, 0.000088039, 0.000102104, 0.000115004, 0.000126787, 0.000137891, 0.00014851, 0.000158774, 0.000168692, 0.000178408, 0.000187915, 0.000197268, 0.000206529, 0.000224535, 0.00024158, 0.000258123, 0.000274609], False, 3, [1, 1, 1, 1, 1, 1, 1, 1, 1, 1, 1, 1, 1, 1, 1, 1, 1, 1, 1, 1, 1, 1, 1], False), False)  # 20
add_polygon(sketch4, [(-0.358974, -0.2197), (-0.451422, -0.2197), (-0.480769, -0.168418), (-0.403846, -0.168418), (-0.403846, 0.2803), (-0.358974, 0.2803)])  # lines 21-26
sketch4.addConstraint(Sketcher.Constraint("Block", 1))
sketch4.addConstraint(Sketcher.Constraint("Block", 2))
sketch4.addConstraint(Sketcher.Constraint("Block", 3))
sketch4.addConstraint(Sketcher.Constraint("Block", 9))
sketch4.addConstraint(Sketcher.Constraint("Block", 10))
sketch4.addConstraint(Sketcher.Constraint("Block", 11))
sketch4.addConstraint(Sketcher.Constraint("Block", 12))
sketch4.addConstraint(Sketcher.Constraint("Block", 13))
sketch4.addConstraint(Sketcher.Constraint("Block", 14))
sketch4.addConstraint(Sketcher.Constraint("Block", 15))
sketch4.addConstraint(Sketcher.Constraint("Block", 16))
sketch4.addConstraint(Sketcher.Constraint("Block", 17))
sketch4.addConstraint(Sketcher.Constraint("Block", 18))
sketch4.addConstraint(Sketcher.Constraint("Block", 19))
sketch4.addConstraint(Sketcher.Constraint("Block", 20))
sketch4.addConstraint(Sketcher.Constraint("Coincident", 0, 2, 1, 2))
sketch4.addConstraint(Sketcher.Constraint("Coincident", 3, 1, 4, 1))
sketch4.addConstraint(Sketcher.Constraint("Coincident", 4, 2, 5, 1))
sketch4.addConstraint(Sketcher.Constraint("Coincident", 5, 2, 6, 1))
sketch4.addConstraint(Sketcher.Constraint("Coincident", 6, 2, 7, 1))
sketch4.addConstraint(Sketcher.Constraint("Coincident", 7, 2, 8, 1))
sketch4.addConstraint(Sketcher.Constraint("Coincident", 8, 2, 9, 2))
sketch4.addConstraint(Sketcher.Constraint("Coincident", 11, 1, 0, 1))
sketch4.addConstraint(Sketcher.Constraint("Horizontal", 5))
sketch4.addConstraint(Sketcher.Constraint("Vertical", 6))
sketch4.addConstraint(Sketcher.Constraint("Horizontal", 7))
sketch4.addConstraint(Sketcher.Constraint("Horizontal", 21))
sketch4.addConstraint(Sketcher.Constraint("Horizontal", 23))
sketch4.addConstraint(Sketcher.Constraint("Vertical", 24))
sketch4.addConstraint(Sketcher.Constraint("Horizontal", 25))
sketch4.addConstraint(Sketcher.Constraint("Vertical", 26))
sketch4.addConstraint(Sketcher.Constraint("DistanceY", 26, 2, 26, 1, 0.5))
sketch4.addConstraint(Sketcher.Constraint("DistanceY", 21, 2, 4, 2, 0.5))
sketch4.addConstraint(Sketcher.Constraint("DistanceX", 25, 1, 25, 2, 0.044872))
sketch4.addConstraint(Sketcher.Constraint("DistanceY", -1, 1, 4, 2, 0.2803))
sketch4.addConstraint(Sketcher.Constraint("DistanceX", 7, 2, 8, 2, 0.1251))
sketch4.addConstraint(Sketcher.Constraint("DistanceX", 5, 1, 5, 2, 0.339744))
sketch4.addConstraint(Sketcher.Constraint("DistanceX", 7, 2, 7, 1, 0.232672))
sketch4.addConstraint(Sketcher.Constraint("DistanceX", 21, 2, 21, 1, 0.092448))
sketch4.addConstraint(Sketcher.Constraint("DistanceX", 23, 1, 23, 2, 0.076923))
sketch4.addConstraint(Sketcher.Constraint("DistanceY", 6, 2, 6, 1, 0.051282))
sketch4.addConstraint(Sketcher.Constraint("DistanceY", 24, 1, 24, 2, 0.448718))
sketch4.addConstraint(Sketcher.Constraint("DistanceX", 22, 2, -1, 1, 0.480769))
pad3 = body.newObject("PartDesign::Pad", "Pad002")
pad3.Profile = sketch4
pad3.Length = 0.04
pad3.Reversed = True

doc.recompute()
